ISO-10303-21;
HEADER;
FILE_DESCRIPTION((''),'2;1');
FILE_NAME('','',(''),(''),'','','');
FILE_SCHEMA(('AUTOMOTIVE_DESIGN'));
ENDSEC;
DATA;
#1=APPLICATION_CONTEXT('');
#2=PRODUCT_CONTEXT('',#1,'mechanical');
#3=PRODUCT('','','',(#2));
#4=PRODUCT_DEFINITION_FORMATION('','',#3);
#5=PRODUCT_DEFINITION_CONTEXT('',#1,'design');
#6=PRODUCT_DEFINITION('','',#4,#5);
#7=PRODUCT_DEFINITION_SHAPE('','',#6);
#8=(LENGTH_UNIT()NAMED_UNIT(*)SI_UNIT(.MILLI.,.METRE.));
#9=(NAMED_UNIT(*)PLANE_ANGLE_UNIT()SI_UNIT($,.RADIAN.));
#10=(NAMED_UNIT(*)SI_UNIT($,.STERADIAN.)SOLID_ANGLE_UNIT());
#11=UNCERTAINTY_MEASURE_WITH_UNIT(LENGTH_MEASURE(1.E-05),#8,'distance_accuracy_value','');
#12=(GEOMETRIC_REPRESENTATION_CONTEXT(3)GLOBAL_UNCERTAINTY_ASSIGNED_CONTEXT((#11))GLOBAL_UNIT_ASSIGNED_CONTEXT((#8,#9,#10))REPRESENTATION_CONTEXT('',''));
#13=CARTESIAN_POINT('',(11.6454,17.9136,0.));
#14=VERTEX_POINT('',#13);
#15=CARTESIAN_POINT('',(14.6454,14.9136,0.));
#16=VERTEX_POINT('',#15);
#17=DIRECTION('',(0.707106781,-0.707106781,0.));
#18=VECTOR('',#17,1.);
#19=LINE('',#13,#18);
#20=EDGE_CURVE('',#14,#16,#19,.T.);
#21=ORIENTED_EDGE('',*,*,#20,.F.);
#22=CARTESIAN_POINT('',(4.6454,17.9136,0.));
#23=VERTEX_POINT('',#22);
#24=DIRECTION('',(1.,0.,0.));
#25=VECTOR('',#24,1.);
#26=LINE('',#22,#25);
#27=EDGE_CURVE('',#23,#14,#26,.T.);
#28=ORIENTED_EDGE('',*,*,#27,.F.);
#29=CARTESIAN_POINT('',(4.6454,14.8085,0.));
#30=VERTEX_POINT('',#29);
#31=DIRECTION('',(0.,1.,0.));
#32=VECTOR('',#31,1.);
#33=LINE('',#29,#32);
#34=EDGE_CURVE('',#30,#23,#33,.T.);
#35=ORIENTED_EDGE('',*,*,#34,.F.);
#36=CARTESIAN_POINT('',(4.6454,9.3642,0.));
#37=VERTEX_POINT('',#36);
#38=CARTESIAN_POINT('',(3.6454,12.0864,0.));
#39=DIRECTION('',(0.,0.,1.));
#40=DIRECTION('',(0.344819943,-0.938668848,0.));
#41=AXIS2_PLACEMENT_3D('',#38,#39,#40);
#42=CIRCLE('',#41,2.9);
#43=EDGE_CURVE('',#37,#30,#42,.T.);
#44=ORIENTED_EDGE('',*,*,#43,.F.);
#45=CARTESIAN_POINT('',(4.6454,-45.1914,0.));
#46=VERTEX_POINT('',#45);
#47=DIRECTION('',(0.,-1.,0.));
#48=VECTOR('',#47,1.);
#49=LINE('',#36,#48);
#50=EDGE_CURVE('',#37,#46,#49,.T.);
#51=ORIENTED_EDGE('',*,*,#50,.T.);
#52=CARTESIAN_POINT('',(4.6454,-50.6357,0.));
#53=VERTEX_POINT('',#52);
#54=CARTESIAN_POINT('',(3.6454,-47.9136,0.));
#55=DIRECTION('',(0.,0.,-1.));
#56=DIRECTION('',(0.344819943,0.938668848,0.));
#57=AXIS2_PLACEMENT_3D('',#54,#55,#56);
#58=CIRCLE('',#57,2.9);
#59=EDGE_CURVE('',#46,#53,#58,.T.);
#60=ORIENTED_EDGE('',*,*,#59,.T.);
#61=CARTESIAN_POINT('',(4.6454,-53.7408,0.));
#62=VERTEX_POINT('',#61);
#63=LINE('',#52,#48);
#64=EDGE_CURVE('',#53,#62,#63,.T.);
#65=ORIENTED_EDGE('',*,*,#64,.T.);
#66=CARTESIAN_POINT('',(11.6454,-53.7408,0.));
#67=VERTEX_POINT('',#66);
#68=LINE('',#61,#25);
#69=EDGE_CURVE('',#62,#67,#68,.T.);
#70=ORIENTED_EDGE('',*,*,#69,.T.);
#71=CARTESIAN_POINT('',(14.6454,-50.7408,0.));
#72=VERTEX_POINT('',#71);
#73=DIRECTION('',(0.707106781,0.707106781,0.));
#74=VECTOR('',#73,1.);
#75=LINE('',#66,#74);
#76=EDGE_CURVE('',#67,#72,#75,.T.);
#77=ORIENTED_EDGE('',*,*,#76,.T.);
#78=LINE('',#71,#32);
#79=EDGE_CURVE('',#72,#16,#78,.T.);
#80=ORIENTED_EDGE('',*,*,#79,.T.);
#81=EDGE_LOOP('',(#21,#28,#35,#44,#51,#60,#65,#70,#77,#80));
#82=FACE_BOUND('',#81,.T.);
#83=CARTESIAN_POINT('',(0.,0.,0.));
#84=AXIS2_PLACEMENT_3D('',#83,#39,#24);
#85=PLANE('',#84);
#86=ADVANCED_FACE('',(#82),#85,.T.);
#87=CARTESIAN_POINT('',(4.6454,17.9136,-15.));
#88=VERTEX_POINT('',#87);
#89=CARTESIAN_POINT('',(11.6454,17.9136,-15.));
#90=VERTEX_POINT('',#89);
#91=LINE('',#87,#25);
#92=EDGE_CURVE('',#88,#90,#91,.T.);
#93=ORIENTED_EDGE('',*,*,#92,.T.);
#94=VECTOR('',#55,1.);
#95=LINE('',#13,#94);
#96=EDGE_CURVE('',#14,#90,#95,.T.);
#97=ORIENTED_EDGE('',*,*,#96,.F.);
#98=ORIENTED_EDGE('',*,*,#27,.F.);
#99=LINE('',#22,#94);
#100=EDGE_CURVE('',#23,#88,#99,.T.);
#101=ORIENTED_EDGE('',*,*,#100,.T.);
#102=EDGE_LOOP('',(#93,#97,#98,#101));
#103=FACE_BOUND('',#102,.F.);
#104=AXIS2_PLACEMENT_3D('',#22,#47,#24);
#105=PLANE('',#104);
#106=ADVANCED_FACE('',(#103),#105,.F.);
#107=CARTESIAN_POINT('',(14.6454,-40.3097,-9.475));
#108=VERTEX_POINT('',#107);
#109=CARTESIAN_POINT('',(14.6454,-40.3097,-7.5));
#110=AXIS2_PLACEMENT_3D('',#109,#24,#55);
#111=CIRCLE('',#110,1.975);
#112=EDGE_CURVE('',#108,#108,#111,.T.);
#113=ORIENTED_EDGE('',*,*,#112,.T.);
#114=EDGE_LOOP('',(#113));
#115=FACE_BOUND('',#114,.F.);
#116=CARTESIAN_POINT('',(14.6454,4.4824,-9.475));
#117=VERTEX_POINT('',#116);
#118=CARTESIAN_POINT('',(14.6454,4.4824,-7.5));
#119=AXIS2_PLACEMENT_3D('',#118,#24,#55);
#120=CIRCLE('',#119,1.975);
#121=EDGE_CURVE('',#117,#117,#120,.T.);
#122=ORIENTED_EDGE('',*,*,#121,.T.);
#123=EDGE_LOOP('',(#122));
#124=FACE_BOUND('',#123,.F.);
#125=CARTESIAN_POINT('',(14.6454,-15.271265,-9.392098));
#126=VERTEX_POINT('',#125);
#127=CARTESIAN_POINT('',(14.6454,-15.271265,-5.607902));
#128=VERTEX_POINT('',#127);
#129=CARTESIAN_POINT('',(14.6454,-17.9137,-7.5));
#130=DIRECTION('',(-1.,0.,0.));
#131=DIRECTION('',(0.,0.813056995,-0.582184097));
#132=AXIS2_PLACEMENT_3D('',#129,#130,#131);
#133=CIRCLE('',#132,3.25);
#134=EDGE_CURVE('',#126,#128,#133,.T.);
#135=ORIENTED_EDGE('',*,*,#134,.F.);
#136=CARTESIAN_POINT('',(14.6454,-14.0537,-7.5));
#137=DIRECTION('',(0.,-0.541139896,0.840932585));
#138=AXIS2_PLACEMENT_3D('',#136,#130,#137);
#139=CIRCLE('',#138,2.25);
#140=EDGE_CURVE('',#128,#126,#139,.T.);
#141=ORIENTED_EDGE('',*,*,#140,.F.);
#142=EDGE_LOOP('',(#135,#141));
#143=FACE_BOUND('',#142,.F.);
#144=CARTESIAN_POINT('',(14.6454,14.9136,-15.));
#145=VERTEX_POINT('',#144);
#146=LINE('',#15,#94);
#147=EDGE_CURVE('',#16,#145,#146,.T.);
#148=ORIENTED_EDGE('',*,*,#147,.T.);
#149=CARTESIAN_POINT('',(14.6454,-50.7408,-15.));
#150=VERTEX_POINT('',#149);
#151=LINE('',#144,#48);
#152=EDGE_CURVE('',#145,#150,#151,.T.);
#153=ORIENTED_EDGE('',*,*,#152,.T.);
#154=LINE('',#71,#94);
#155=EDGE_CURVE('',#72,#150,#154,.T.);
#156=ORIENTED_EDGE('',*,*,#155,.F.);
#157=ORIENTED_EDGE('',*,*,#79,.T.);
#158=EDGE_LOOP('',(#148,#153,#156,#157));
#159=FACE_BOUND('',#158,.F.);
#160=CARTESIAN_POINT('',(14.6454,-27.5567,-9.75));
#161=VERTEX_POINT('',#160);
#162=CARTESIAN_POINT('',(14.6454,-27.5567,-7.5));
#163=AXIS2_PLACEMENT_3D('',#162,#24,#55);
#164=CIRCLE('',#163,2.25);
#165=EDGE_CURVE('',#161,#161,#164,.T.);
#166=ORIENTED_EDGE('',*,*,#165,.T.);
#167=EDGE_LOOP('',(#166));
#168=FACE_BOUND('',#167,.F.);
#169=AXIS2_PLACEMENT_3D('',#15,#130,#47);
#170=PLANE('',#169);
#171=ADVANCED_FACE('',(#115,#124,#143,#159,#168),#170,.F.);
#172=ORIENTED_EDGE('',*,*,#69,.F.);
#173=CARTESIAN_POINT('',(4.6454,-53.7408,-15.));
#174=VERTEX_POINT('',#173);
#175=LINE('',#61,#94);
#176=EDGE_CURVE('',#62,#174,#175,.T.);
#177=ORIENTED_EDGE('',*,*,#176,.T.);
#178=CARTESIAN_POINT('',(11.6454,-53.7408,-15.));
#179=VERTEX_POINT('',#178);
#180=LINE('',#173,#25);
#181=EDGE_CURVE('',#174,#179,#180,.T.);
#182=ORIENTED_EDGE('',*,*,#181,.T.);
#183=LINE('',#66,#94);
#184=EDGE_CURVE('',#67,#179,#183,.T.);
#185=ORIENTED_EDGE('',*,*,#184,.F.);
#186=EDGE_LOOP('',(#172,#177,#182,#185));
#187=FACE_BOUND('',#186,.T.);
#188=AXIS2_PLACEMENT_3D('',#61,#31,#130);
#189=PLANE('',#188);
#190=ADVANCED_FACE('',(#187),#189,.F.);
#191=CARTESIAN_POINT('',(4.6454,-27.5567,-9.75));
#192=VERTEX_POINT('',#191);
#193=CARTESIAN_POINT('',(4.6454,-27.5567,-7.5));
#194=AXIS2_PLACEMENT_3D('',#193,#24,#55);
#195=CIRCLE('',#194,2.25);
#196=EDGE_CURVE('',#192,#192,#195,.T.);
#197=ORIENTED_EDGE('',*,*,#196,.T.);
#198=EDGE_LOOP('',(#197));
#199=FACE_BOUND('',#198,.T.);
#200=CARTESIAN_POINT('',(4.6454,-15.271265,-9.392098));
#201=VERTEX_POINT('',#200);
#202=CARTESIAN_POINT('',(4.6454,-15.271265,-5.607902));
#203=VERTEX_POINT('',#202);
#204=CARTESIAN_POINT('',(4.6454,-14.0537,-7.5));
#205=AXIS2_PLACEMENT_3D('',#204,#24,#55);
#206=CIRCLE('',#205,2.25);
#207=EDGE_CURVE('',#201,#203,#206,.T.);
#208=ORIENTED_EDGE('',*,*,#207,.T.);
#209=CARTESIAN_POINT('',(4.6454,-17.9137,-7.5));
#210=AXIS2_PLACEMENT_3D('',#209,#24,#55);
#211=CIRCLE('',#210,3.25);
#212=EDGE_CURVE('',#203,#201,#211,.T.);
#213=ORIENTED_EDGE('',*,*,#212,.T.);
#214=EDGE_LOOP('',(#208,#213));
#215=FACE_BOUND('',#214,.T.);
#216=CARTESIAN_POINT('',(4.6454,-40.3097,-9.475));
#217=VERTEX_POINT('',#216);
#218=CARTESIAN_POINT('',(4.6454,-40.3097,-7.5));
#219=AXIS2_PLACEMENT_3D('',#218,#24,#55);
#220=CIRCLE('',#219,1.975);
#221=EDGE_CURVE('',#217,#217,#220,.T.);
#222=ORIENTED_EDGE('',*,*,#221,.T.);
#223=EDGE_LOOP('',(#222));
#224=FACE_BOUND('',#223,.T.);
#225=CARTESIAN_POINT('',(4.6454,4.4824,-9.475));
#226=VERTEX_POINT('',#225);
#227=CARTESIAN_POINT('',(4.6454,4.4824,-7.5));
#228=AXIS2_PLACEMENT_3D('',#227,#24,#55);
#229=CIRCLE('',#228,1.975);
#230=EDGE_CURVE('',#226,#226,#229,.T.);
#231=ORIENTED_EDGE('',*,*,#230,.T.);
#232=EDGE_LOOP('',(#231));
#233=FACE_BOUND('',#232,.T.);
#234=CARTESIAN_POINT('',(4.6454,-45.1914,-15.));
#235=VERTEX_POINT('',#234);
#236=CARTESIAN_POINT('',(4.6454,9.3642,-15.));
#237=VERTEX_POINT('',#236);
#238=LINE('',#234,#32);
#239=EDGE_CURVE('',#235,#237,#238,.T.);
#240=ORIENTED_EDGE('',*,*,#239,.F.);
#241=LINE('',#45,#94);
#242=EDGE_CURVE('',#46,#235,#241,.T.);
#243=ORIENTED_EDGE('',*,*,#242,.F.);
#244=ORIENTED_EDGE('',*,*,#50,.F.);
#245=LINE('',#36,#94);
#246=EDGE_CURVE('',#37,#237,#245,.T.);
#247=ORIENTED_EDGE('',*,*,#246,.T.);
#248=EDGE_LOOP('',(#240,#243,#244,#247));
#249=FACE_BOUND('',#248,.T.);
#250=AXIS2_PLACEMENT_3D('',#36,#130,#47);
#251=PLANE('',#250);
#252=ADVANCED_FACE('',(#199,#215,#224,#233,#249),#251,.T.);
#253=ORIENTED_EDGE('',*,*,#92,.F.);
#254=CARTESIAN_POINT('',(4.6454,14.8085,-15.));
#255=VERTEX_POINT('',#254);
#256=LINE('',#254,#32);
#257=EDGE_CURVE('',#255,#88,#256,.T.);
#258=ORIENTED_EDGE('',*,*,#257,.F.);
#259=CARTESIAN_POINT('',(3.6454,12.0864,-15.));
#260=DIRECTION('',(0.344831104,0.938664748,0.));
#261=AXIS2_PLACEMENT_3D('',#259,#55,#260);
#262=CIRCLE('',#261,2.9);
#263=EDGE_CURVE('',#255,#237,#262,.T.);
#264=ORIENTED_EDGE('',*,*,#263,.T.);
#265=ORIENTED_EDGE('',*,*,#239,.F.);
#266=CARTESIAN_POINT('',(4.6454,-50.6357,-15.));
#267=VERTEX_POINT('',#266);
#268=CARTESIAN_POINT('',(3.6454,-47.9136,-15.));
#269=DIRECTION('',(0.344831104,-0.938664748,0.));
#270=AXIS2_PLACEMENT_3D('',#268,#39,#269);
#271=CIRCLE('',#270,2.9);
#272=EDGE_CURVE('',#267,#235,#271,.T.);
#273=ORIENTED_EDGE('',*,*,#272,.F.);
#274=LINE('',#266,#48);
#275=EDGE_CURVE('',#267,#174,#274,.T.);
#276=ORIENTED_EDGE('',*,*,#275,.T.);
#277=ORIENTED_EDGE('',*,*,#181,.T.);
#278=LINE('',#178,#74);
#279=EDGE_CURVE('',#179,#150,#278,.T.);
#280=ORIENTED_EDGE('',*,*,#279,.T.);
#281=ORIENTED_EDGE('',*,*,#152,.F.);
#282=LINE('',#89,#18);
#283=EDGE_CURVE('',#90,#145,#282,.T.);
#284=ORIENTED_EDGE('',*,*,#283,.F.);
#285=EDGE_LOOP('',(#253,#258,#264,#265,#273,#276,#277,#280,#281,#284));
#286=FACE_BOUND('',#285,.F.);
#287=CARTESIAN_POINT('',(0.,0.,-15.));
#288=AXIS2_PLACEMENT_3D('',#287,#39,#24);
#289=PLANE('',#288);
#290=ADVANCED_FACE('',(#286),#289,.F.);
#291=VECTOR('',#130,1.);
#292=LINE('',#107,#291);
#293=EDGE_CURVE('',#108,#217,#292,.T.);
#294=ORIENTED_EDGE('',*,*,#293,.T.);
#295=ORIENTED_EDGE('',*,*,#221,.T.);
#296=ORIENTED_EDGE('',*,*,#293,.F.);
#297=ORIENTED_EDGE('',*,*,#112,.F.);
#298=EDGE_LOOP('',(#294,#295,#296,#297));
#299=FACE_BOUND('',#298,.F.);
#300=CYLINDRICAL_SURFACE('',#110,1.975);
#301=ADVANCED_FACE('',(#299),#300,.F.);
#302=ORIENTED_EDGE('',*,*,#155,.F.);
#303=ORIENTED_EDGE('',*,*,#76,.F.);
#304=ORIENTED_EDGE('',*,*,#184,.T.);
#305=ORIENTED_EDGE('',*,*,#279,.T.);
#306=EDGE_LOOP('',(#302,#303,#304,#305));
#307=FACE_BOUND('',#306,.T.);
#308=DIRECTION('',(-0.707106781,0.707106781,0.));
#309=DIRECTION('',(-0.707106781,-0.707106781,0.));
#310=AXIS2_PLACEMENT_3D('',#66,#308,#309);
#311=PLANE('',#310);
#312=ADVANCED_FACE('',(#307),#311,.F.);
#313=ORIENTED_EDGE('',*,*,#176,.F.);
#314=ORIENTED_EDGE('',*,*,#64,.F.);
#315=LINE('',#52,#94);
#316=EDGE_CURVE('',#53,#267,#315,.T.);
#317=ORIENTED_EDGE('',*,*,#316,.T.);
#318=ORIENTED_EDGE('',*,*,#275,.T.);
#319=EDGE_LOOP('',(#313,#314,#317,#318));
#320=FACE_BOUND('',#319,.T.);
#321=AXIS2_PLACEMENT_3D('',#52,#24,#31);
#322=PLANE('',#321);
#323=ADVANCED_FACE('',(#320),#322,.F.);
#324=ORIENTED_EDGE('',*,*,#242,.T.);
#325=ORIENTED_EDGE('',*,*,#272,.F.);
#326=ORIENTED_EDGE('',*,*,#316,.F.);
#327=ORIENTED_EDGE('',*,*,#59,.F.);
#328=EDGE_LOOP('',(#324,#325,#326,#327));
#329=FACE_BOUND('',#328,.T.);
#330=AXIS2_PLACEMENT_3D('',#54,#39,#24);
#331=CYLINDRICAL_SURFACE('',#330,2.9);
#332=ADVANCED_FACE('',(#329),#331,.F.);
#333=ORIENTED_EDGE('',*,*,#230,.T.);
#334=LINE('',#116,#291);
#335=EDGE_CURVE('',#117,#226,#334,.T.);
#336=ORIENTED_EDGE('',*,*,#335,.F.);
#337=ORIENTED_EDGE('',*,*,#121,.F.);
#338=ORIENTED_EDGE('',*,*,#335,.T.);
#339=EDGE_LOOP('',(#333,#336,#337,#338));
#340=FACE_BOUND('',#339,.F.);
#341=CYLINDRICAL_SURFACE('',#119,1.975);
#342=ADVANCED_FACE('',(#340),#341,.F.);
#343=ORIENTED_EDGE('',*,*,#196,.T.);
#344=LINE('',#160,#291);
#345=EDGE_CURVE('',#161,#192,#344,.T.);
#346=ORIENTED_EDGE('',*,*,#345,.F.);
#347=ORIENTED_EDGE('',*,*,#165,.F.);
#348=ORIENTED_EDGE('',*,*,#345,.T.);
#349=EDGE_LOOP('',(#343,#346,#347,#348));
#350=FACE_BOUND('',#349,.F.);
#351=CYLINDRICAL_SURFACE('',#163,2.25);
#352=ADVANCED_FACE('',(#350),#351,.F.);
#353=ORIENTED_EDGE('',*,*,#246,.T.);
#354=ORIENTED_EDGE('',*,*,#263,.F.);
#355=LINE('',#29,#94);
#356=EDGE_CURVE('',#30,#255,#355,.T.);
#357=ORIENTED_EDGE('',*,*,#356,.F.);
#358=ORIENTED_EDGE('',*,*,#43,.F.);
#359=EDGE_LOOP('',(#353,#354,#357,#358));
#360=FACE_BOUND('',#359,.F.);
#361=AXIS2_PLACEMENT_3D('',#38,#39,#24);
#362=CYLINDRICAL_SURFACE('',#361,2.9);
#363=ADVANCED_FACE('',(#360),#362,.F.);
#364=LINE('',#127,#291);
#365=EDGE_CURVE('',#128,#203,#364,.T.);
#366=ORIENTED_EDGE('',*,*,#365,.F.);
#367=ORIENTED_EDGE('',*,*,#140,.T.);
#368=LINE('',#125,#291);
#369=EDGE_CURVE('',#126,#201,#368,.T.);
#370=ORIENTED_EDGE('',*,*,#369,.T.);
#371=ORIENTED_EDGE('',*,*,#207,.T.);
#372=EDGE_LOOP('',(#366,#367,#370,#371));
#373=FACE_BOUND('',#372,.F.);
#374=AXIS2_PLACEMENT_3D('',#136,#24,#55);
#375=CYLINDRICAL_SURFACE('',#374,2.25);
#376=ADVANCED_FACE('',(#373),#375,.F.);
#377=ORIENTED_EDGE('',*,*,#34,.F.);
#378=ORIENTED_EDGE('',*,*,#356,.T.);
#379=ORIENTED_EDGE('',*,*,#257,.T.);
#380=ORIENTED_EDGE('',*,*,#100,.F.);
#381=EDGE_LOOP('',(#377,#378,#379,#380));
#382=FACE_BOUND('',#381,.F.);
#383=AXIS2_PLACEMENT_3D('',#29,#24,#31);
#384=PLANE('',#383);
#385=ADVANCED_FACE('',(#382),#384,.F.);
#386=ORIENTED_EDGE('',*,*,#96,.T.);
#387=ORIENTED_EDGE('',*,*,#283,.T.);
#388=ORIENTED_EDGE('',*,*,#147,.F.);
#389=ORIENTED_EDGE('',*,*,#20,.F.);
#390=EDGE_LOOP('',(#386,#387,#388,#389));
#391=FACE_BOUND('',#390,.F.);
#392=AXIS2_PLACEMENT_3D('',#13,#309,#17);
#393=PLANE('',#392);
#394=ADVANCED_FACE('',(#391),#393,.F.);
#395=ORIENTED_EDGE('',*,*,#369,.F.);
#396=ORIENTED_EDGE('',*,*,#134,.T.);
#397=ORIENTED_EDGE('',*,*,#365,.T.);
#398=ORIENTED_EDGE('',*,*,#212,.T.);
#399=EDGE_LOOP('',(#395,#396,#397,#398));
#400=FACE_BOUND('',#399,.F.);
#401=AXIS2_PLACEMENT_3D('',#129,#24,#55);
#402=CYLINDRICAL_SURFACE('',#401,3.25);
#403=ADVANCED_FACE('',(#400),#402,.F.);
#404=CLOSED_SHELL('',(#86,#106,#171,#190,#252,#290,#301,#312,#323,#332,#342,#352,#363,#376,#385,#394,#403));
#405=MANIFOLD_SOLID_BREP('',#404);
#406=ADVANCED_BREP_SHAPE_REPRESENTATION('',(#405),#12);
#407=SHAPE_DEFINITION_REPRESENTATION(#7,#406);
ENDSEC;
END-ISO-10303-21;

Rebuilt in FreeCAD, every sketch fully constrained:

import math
import FreeCAD as App
import Part
import Sketcher
from FreeCAD import Vector
Q = App.Units.Quantity

doc = App.newDocument("Part")
body = doc.addObject("PartDesign::Body", "Body")

sketch1 = body.newObject("Sketcher::SketchObject", "Sketch")
sketch1.AttachmentSupport = (doc.getObject("XY_Plane"), [""])
sketch1.MapMode = "FlatFace"
sketch1.addGeometry(Part.LineSegment(Vector(4.6, 17.9, 0), Vector(4.6, 14.8, 0)), False)
sketch1.addGeometry(Part.ArcOfCircle(Part.Circle(Vector(3.6, 12.1, 0), Vector(0, 0, 1), 2.9), math.radians(-70), math.radians(70)), False)
sketch1.addGeometry(Part.LineSegment(Vector(4.6, 9.4, 0), Vector(4.6, -17.9, 0)), False)
sketch1.addGeometry(Part.LineSegment(Vector(4.6, -17.9, 0), Vector(14.6, -17.9, 0)), False)
sketch1.addGeometry(Part.LineSegment(Vector(14.6, -17.9, 0), Vector(14.6, 14.9, 0)), False)
sketch1.addGeometry(Part.LineSegment(Vector(14.6, 14.9, 0), Vector(11.6, 17.9, 0)), False)
sketch1.addGeometry(Part.LineSegment(Vector(11.6, 17.9, 0), Vector(4.6, 17.9, 0)), False)
sketch1.addConstraint(Sketcher.Constraint("Coincident", 0, 2, 1, 2))
sketch1.addConstraint(Sketcher.Constraint("Coincident", 1, 1, 2, 1))
sketch1.addConstraint(Sketcher.Constraint("Coincident", 2, 2, 3, 1))
sketch1.addConstraint(Sketcher.Constraint("Coincident", 3, 2, 4, 1))
sketch1.addConstraint(Sketcher.Constraint("Coincident", 4, 2, 5, 1))
sketch1.addConstraint(Sketcher.Constraint("Coincident", 5, 2, 6, 1))
sketch1.addConstraint(Sketcher.Constraint("Coincident", 6, 2, 0, 1))
sketch1.addConstraint(Sketcher.Constraint("Vertical", 0))
sketch1.addConstraint(Sketcher.Constraint("Vertical", 2))
sketch1.addConstraint(Sketcher.Constraint("Horizontal", 3))
sketch1.addConstraint(Sketcher.Constraint("Vertical", 4))
sketch1.addConstraint(Sketcher.Constraint("Horizontal", 6))
sketch1.addConstraint(Sketcher.Constraint("Symmetric", 2, 2, 6, 2, -1))
sketch1.addConstraint(Sketcher.Constraint("Radius", 1, Q("2.9 mm")))
sketch1.addConstraint(Sketcher.Constraint("DistanceX", 1, 3, 0, 2, Q("1 mm")))
sketch1.addConstraint(Sketcher.Constraint("DistanceY", 2, 2, 1, 3, Q("30 mm")))
sketch1.addConstraint(Sketcher.Constraint("DistanceX", 1, 3, 3, 2, Q("11 mm")))
sketch1.addConstraint(Sketcher.Constraint("DistanceX", 5, 2, 4, 2, Q("3 mm")))
sketch1.addConstraint(Sketcher.Constraint("DistanceY", 4, 2, 5, 2, Q("3 mm")))
sketch1.addConstraint(Sketcher.Constraint("DistanceY", 0, 2, 0, 1, Q("3.105 mm")))
sketch1.addConstraint(Sketcher.Constraint("DistanceX", -1, 1, 1, 3, Q("3.6454 mm")))
pad1 = body.newObject("PartDesign::Pad", "Pad")
pad1.Profile = sketch1
pad1.Length = 15
pad1.Reversed = True
doc.recompute()

datumplane = body.newObject("PartDesign::Plane", "DatumPlane")
datumplane.AttachmentSupport = (doc.getObject("XZ_Plane"), [""])
datumplane.MapMode = "FlatFace"
datumplane.AttachmentOffset = App.Placement(Vector(0, 0, 17.9136), App.Rotation())
mirrored = body.newObject("PartDesign::Mirrored", "Mirrored")
mirrored.Originals = [pad1]
mirrored.MirrorPlane = (datumplane, [""])
body.Tip = mirrored

sketch2 = body.newObject("Sketcher::SketchObject", "Sketch001")
sketch2.AttachmentSupport = (doc.getObject("YZ_Plane"), [""])
sketch2.MapMode = "FlatFace"
sketch2.AttachmentOffset = App.Placement(Vector(0, 0, 14.6454), App.Rotation())
sketch2.addGeometry(Part.Circle(Vector(4.5, -7.5, 0), Vector(0, 0, 1), 2), False)
sketch2.addGeometry(Part.Circle(Vector(-40.3, -7.5, 0), Vector(0, 0, 1), 2), False)
sketch2.addGeometry(Part.ArcOfCircle(Part.Circle(Vector(-17.9, -7.5, 0), Vector(0, 0, 1), 3.2), math.radians(36), math.radians(324)), False)
sketch2.addGeometry(Part.ArcOfCircle(Part.Circle(Vector(-14.1, -7.5, 0), Vector(0, 0, 1), 2.2), math.radians(-123), math.radians(123)), False)
sketch2.addGeometry(Part.Circle(Vector(-27.6, -7.5, 0), Vector(0, 0, 1), 2.2), False)
sketch2.addConstraint(Sketcher.Constraint("Coincident", 2, 1, 3, 2))
sketch2.addConstraint(Sketcher.Constraint("Coincident", 3, 1, 2, 2))
sketch2.addConstraint(Sketcher.Constraint("Equal", 0, 1))
sketch2.addConstraint(Sketcher.Constraint("Equal", 3, 4))
sketch2.addConstraint(Sketcher.Constraint("Horizontal", 0, 3, 1, 3))
sketch2.addConstraint(Sketcher.Constraint("Horizontal", 1, 3, 2, 3))
sketch2.addConstraint(Sketcher.Constraint("Horizontal", 2, 3, 3, 3))
sketch2.addConstraint(Sketcher.Constraint("Horizontal", 3, 3, 4, 3))
sketch2.addConstraint(Sketcher.Constraint("Diameter", 4, Q("4.5 mm")))
sketch2.addConstraint(Sketcher.Constraint("Diameter", 0, Q("3.95 mm")))
sketch2.addConstraint(Sketcher.Constraint("Radius", 2, Q("3.25 mm")))
sketch2.addConstraint(Sketcher.Constraint("DistanceX", 4, 3, 2, 3, Q("9.643 mm")))
sketch2.addConstraint(Sketcher.Constraint("DistanceX", 4, 3, 3, 3, Q("13.503 mm")))
sketch2.addConstraint(Sketcher.Constraint("DistanceY", 0, 3, -1, 1, Q("7.5 mm")))
sketch2.addConstraint(Sketcher.Constraint("DistanceX", 1, 3, 0, 3, Q("44.792 mm")))
sketch2.addConstraint(Sketcher.Constraint("DistanceX", 1, 3, 2, 3, Q("22.396 mm")))
sketch2.addConstraint(Sketcher.Constraint("DistanceX", -1, 1, 0, 3, Q("4.4824 mm")))
pocket1 = body.newObject("PartDesign::Pocket", "Pocket")
pocket1.Profile = sketch2
pocket1.Type = "ThroughAll"

doc.recompute()
